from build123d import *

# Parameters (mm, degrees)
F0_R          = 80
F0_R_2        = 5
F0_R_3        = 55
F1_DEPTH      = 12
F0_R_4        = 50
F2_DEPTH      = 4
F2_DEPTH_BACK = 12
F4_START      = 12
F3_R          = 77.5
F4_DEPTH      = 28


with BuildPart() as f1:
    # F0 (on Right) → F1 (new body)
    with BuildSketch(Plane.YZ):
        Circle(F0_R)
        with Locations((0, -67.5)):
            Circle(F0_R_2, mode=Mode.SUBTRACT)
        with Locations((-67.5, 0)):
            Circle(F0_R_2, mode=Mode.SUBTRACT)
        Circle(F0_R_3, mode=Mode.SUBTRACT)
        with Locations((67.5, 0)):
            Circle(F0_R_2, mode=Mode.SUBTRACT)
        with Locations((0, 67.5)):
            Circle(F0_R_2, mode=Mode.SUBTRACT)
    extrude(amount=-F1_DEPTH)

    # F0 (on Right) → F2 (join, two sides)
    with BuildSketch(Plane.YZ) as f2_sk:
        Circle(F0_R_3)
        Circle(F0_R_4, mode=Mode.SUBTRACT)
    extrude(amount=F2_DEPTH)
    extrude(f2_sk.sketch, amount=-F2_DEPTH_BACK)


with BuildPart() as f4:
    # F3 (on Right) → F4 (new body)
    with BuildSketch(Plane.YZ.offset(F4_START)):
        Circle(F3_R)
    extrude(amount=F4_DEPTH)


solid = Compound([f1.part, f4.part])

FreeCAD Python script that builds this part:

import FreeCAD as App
import Part
import Sketcher
from FreeCAD import Vector

doc = App.newDocument("Part")
body = doc.addObject("PartDesign::Body", "Body")

# Sketch on YZ plane
sketch1 = body.newObject("Sketcher::SketchObject", "Sketch")
sketch1.AttachmentSupport = (doc.getObject("YZ_Plane"), [""])
sketch1.MapMode = "FlatFace"
sketch1.addGeometry([
    Part.Circle(Vector(0, 0, 0), Vector(0, 0, 1), 80),  # 0
    Part.Circle(Vector(0, -68, 0), Vector(0, 0, 1), 5),  # 1
    Part.Circle(Vector(-68, 0, 0), Vector(0, 0, 1), 5),  # 2
    Part.Circle(Vector(0, 0, 0), Vector(0, 0, 1), 55),  # 3
    Part.Circle(Vector(68, 0, 0), Vector(0, 0, 1), 5),  # 4
    Part.Circle(Vector(0, 68, 0), Vector(0, 0, 1), 5),  # 5
], False)
sketch1.addConstraint([
    Sketcher.Constraint("Coincident", 0, 3, -1, 1),
    Sketcher.Constraint("Coincident", 3, 3, -1, 1),
    Sketcher.Constraint("Equal", 1, 2),
    Sketcher.Constraint("Equal", 2, 4),
    Sketcher.Constraint("Equal", 4, 5),
    Sketcher.Constraint("Symmetric", 2, 3, 4, 3, -1, 1),
    Sketcher.Constraint("Symmetric", 1, 3, 5, 3, -1, 1),
    Sketcher.Constraint("PointOnObject", 1, 3, -2),
    Sketcher.Constraint("PointOnObject", 2, 3, -1),
    Sketcher.Constraint("Diameter", 0, 160.0),
    Sketcher.Constraint("Diameter", 1, 10.0),
    Sketcher.Constraint("Diameter", 3, 110.0),
    Sketcher.Constraint("DistanceX", 2, 3, 4, 3, 135.0),
    Sketcher.Constraint("DistanceY", 1, 3, 5, 3, 135.0),
])
pad1 = body.newObject("PartDesign::Pad", "Pad")
pad1.Profile = sketch1
pad1.Length = 12
pad1.Reversed = True

# Sketch on YZ plane
sketch2 = body.newObject("Sketcher::SketchObject", "Sketch001")
sketch2.AttachmentSupport = (doc.getObject("YZ_Plane"), [""])
sketch2.MapMode = "FlatFace"
sketch2.addGeometry([
    Part.Circle(Vector(0, 0, 0), Vector(0, 0, 1), 55),
    Part.Circle(Vector(0, 0, 0), Vector(0, 0, 1), 50),
], False)
sketch2.addConstraint([
    Sketcher.Constraint("Coincident", 0, 3, -1, 1),
    Sketcher.Constraint("Coincident", 1, 3, -1, 1),
    Sketcher.Constraint("Diameter", 0, 110.0),
    Sketcher.Constraint("Diameter", 1, 100.0),
])
pad2 = body.newObject("PartDesign::Pad", "Pad001")
pad2.Profile = sketch2
pad2.Type = "TwoLengths"
pad2.Length = 4
pad2.Length2 = 12
body2 = doc.addObject("PartDesign::Body", "Body001")

# Sketch on YZ plane
sketch3 = body2.newObject("Sketcher::SketchObject", "Sketch002")
sketch3.AttachmentSupport = (doc.getObject("YZ_Plane001"), [""])
sketch3.MapMode = "FlatFace"
sketch3.AttachmentOffset = App.Placement(Vector(0, 0, 12), App.Rotation())
sketch3.addGeometry(Part.Circle(Vector(0, 0, 0), Vector(0, 0, 1), 78), False)
sketch3.addConstraint([
    Sketcher.Constraint("Coincident", 0, 3, -1, 1),
    Sketcher.Constraint("Diameter", 0, 155.0),
])
pad3 = body2.newObject("PartDesign::Pad", "Pad002")
pad3.Profile = sketch3
pad3.Length = 28

doc.recompute()
